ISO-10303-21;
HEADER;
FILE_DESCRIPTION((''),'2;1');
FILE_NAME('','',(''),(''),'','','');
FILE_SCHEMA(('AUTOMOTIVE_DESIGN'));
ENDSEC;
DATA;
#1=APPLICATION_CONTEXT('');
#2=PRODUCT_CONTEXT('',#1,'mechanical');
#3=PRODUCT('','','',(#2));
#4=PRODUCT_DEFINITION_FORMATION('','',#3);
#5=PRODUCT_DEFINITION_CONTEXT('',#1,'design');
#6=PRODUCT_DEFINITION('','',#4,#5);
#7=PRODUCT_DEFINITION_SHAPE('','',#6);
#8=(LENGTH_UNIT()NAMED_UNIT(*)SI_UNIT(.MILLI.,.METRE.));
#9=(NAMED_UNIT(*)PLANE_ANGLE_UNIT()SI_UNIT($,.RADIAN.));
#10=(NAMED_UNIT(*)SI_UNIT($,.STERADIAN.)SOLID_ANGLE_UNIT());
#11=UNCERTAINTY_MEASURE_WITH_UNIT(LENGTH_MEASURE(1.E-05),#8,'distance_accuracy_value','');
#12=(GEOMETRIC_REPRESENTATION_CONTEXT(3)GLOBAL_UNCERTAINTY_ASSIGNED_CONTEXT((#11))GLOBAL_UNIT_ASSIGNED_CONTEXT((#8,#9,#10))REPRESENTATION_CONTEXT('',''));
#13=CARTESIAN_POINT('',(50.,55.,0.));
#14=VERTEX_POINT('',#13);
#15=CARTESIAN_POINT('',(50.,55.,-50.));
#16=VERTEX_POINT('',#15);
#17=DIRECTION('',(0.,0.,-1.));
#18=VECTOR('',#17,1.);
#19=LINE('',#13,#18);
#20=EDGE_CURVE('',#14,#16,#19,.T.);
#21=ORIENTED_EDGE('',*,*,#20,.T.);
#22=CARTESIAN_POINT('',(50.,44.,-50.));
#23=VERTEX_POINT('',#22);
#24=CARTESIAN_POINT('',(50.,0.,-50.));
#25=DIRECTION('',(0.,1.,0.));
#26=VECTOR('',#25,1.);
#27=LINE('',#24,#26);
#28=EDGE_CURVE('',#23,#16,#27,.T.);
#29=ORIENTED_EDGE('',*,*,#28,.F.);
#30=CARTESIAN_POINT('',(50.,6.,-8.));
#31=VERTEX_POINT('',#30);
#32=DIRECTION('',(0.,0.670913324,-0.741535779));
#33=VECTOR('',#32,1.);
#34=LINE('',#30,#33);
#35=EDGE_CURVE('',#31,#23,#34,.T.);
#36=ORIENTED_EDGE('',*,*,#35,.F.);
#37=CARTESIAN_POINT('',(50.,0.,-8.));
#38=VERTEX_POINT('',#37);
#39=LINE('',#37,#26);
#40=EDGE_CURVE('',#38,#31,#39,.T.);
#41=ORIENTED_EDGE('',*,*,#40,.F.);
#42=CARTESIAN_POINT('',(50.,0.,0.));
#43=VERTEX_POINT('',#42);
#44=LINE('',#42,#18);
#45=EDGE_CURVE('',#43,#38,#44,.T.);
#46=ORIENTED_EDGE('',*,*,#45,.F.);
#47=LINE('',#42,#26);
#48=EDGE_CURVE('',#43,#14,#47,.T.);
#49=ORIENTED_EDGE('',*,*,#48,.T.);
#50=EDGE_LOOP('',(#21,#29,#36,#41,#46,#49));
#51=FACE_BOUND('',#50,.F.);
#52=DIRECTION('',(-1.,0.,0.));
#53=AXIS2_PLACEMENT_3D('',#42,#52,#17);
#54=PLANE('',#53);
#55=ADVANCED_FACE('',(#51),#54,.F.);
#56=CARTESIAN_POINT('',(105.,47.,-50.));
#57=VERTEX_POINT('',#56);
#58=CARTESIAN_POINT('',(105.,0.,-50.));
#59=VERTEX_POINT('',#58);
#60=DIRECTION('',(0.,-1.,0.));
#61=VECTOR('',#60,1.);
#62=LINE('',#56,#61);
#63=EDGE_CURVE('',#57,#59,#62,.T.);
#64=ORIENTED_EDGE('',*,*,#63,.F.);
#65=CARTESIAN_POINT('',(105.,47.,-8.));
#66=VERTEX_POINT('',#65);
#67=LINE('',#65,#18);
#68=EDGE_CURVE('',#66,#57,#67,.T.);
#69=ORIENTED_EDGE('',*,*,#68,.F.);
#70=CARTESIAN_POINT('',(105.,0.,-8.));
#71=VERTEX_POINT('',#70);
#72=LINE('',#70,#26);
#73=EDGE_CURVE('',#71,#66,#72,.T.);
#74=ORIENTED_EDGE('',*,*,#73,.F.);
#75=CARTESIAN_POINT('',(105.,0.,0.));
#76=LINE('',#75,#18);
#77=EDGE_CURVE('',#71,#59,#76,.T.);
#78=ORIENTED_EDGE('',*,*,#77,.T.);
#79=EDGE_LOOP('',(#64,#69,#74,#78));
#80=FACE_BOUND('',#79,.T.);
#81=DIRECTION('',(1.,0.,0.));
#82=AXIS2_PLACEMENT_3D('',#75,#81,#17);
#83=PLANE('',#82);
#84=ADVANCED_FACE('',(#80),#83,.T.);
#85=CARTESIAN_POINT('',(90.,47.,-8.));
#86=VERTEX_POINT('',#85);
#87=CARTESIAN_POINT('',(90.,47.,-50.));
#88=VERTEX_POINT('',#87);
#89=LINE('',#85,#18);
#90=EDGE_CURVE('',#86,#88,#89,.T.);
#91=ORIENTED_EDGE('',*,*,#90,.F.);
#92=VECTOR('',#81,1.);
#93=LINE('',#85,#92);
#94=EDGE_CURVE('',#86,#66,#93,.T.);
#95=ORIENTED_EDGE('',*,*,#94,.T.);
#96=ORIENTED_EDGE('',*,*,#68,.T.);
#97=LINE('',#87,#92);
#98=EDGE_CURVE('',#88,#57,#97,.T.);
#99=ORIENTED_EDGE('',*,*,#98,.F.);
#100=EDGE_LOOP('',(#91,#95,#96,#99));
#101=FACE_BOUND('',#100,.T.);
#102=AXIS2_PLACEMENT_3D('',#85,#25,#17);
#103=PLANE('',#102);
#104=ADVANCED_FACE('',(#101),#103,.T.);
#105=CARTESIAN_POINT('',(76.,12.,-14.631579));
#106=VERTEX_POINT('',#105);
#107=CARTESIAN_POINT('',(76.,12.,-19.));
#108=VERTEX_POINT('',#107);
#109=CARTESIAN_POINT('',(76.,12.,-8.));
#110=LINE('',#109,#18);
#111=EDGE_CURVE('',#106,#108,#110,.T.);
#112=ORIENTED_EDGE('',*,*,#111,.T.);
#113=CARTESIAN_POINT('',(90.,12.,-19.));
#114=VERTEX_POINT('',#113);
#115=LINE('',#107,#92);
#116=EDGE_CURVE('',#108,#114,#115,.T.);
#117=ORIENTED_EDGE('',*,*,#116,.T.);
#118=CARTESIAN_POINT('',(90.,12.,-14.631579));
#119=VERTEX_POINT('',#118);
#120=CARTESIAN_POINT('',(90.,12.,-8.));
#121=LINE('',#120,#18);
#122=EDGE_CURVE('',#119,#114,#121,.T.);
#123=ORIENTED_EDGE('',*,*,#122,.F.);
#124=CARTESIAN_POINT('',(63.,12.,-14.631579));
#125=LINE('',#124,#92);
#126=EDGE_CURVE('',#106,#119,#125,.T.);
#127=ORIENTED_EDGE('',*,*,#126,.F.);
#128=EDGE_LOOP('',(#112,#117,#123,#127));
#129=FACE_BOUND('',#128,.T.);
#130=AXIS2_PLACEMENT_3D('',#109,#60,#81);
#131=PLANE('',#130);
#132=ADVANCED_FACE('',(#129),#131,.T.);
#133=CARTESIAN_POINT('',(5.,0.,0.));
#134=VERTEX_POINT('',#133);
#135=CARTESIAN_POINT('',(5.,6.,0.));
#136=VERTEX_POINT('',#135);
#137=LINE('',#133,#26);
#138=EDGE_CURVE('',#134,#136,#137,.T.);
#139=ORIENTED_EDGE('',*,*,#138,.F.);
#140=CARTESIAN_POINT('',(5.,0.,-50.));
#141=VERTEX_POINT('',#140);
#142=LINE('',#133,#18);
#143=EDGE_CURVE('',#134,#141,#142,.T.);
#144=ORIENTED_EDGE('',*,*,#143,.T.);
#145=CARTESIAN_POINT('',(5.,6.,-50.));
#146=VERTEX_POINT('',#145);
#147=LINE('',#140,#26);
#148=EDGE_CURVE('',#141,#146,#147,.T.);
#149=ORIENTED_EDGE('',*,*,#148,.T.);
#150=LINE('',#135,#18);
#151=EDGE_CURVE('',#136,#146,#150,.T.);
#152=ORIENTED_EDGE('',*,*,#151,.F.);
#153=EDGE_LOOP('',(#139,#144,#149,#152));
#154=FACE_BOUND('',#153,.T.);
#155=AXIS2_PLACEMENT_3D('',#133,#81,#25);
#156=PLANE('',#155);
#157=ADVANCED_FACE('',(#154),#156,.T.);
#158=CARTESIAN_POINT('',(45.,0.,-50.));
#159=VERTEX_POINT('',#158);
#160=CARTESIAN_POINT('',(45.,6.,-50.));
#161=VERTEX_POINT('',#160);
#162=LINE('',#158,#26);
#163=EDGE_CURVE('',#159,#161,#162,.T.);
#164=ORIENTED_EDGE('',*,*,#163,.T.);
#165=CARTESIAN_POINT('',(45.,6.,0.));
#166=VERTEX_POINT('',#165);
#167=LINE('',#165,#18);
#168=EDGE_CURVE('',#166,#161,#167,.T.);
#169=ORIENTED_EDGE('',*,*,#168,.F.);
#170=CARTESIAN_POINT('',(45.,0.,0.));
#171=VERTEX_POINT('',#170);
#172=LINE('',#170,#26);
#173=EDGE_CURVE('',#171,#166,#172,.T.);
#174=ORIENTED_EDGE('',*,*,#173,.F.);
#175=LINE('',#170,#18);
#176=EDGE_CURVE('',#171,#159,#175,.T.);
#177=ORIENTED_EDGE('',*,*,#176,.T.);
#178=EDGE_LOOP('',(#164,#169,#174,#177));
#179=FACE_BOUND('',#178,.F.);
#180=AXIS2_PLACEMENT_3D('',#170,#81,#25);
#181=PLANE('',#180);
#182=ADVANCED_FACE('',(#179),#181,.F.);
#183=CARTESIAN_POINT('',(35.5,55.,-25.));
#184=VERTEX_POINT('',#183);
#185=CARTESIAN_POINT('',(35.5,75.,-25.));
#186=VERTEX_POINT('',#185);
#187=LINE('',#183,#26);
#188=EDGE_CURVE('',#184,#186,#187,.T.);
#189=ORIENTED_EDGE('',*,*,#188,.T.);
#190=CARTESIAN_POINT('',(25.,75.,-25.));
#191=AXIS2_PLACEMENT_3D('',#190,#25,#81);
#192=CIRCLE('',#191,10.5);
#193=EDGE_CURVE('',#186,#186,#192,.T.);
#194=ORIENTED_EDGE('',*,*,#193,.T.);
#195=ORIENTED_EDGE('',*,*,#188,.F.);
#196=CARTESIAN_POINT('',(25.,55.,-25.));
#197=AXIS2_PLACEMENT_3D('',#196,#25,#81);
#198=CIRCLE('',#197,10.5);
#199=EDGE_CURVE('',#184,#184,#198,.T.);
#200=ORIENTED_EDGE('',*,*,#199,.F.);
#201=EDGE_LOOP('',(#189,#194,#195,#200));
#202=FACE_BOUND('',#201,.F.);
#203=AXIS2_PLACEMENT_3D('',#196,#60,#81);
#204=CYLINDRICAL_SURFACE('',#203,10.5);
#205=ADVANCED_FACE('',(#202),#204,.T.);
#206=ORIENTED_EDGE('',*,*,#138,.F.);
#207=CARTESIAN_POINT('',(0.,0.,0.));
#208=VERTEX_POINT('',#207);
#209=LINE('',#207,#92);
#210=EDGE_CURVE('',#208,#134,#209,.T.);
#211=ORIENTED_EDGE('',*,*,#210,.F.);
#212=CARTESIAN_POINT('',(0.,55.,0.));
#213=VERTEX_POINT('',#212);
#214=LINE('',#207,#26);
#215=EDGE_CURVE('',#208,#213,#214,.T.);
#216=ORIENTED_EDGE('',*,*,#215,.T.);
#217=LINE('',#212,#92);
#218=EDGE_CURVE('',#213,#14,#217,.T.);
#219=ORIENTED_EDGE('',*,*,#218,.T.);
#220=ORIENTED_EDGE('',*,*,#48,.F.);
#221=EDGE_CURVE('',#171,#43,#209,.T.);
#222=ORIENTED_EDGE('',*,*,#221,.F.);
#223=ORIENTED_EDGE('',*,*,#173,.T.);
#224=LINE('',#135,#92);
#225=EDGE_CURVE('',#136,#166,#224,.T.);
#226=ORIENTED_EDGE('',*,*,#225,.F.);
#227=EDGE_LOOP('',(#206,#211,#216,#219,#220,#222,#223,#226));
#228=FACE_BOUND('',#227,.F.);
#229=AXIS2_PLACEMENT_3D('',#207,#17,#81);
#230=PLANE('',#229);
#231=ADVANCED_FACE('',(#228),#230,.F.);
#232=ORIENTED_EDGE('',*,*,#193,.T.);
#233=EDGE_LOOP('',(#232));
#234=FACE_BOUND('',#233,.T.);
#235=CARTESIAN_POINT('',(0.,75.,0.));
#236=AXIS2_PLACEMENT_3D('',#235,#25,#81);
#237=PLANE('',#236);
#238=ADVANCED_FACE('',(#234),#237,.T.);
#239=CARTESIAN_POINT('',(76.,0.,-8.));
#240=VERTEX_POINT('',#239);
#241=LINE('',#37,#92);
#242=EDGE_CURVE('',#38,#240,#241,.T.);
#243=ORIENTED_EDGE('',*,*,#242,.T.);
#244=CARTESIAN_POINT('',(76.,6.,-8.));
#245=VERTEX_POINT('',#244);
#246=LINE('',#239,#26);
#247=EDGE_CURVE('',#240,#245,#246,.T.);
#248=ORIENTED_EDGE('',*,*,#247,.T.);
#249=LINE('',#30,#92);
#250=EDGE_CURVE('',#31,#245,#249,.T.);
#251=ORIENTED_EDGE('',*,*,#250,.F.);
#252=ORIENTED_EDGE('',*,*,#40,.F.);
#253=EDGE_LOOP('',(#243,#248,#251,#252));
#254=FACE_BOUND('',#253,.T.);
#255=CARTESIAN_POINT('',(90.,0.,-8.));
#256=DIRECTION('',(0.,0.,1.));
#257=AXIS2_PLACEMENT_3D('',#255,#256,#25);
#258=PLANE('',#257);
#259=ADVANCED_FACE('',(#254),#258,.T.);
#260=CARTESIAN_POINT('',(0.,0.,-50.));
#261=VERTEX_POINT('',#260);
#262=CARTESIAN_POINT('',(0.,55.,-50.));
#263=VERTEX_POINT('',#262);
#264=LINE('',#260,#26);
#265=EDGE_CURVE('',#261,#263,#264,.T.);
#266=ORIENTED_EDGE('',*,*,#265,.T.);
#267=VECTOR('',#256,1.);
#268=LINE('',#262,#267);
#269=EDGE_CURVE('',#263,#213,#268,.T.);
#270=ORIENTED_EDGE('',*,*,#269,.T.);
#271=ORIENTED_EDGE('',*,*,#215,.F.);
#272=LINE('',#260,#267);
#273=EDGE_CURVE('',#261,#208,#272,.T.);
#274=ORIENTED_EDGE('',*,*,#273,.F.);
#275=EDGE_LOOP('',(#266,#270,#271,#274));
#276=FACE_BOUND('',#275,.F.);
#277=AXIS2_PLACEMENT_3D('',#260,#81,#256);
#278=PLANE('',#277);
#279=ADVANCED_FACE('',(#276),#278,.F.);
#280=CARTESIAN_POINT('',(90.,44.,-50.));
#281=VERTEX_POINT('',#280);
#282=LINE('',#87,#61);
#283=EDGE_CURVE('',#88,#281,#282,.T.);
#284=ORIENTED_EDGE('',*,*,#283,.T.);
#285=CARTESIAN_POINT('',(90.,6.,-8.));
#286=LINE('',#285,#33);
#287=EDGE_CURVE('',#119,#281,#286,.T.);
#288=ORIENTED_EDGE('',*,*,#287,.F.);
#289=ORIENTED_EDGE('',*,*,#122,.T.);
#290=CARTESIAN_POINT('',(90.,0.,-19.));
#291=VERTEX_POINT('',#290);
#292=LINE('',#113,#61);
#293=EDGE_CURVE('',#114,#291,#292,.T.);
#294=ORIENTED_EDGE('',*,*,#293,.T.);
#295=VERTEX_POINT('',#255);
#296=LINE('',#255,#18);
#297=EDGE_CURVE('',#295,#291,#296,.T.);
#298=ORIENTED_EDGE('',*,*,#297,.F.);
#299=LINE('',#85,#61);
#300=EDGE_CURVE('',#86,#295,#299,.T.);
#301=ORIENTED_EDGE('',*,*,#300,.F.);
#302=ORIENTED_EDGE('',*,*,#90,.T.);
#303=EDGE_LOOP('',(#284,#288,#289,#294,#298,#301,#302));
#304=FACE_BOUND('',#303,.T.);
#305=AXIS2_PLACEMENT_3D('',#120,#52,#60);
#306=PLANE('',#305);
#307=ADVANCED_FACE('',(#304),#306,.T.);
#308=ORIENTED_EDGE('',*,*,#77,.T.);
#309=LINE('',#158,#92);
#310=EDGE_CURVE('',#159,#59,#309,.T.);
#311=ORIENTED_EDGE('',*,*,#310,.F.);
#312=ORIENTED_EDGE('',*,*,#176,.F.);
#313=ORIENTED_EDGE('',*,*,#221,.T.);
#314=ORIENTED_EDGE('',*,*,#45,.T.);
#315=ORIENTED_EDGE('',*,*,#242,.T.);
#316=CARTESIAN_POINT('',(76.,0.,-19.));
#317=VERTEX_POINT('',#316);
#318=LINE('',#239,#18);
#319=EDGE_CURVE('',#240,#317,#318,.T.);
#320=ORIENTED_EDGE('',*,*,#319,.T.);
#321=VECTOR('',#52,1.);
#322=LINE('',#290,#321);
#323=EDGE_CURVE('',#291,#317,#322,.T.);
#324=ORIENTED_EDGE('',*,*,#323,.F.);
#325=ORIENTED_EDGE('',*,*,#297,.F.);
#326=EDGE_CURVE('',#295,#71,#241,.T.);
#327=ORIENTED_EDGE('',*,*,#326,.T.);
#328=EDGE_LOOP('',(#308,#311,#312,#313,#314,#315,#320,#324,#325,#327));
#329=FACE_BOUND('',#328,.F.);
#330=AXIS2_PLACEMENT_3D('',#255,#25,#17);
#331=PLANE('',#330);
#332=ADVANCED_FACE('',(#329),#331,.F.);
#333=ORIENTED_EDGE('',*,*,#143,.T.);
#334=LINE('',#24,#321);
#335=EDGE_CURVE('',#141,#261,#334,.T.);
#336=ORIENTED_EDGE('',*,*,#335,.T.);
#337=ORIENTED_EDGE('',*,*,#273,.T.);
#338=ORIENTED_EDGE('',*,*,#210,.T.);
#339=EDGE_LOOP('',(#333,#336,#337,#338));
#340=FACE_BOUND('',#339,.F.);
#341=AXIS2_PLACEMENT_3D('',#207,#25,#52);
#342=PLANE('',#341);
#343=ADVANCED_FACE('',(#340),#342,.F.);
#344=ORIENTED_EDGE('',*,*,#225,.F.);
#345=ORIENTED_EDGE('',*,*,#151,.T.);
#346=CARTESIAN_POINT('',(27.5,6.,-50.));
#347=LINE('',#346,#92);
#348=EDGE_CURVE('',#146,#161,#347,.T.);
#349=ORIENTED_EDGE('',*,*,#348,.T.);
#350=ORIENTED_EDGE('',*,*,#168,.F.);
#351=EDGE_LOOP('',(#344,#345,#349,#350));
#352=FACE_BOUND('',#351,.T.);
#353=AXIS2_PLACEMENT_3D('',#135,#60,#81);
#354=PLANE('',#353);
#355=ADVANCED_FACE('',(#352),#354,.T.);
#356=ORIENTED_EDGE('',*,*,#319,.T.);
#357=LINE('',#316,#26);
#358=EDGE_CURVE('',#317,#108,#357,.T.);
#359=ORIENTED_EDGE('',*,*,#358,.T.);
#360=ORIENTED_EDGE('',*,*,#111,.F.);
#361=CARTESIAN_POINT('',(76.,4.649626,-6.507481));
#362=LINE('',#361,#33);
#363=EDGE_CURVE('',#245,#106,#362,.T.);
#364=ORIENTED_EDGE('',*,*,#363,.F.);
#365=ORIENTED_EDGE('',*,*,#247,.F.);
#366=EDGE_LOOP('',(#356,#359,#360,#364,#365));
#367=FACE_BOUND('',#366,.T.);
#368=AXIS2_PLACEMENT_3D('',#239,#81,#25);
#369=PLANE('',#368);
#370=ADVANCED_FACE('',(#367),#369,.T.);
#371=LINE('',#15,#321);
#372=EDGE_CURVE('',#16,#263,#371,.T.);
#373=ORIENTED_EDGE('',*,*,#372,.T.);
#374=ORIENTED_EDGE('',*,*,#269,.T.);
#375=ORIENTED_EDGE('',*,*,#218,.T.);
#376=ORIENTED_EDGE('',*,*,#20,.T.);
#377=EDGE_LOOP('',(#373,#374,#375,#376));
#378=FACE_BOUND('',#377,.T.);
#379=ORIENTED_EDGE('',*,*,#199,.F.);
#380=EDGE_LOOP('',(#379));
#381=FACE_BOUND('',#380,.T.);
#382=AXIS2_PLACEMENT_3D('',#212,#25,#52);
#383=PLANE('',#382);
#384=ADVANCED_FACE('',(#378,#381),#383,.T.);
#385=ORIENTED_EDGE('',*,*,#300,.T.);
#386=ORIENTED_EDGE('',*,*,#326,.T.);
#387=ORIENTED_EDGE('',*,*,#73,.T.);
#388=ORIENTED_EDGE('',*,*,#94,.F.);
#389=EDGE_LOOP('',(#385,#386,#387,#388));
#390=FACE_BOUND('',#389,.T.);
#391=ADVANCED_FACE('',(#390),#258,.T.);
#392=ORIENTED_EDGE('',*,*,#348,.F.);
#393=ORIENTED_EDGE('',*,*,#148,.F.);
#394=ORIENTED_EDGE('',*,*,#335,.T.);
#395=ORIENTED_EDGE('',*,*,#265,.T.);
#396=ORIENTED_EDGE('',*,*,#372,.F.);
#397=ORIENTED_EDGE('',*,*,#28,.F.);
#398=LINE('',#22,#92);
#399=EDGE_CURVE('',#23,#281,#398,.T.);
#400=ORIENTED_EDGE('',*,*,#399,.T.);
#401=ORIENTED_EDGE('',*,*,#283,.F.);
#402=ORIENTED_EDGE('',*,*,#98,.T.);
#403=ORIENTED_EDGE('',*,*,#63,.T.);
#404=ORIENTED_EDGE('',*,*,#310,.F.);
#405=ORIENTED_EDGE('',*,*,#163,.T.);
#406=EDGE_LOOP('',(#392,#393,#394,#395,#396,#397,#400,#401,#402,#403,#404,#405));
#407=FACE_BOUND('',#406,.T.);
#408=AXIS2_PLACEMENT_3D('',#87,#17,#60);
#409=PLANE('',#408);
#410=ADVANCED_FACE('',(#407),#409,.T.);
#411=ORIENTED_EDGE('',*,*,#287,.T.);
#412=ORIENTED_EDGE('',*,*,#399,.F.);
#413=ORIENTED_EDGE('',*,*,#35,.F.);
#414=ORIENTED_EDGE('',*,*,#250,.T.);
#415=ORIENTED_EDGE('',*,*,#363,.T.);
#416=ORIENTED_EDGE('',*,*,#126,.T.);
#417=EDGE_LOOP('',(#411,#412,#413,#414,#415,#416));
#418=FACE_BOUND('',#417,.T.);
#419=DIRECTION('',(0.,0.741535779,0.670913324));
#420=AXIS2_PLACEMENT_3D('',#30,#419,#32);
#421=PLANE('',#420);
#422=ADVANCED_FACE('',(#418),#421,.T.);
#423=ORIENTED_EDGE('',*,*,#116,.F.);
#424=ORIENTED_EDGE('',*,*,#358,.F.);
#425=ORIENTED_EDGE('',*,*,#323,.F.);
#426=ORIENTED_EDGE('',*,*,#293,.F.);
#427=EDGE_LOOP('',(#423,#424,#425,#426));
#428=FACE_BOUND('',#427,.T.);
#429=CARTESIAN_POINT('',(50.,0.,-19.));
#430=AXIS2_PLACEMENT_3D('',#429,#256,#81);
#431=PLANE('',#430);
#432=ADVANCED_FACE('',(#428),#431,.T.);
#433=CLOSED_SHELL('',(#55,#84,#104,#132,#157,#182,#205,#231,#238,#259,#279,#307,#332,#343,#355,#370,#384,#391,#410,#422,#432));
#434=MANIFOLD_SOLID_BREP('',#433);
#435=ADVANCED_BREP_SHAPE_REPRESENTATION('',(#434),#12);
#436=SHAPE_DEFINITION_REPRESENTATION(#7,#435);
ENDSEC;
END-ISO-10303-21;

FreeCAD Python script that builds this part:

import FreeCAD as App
import Part
import Sketcher

V = App.Vector

doc = App.newDocument("Part")
body = doc.addObject("PartDesign::Body", "Body")

sketch1 = body.newObject("Sketcher::SketchObject", "Sketch")
sketch1.AttachmentSupport = (doc.getObject("XZ_Plane"), [""])
sketch1.MapMode = "FlatFace"
sketch1.addGeometry([
    Part.LineSegment(V(0, -50, 0), V(0, 0, 0)),
    Part.LineSegment(V(0, 0, 0), V(50, 0, 0)),
    Part.LineSegment(V(50, 0, 0), V(50, -50, 0)),
    Part.LineSegment(V(50, -50, 0), V(0, -50, 0)),
], False)
sketch1.addConstraint([
    Sketcher.Constraint("Coincident", 0, 2, 1, 1),
    Sketcher.Constraint("Coincident", 1, 2, 2, 1),
    Sketcher.Constraint("Coincident", 2, 2, 3, 1),
    Sketcher.Constraint("Coincident", 3, 2, 0, 1),
    Sketcher.Constraint("Vertical", 0),
    Sketcher.Constraint("Horizontal", 1),
    Sketcher.Constraint("Vertical", 2),
    Sketcher.Constraint("Horizontal", 3),
    Sketcher.Constraint("Coincident", 0, 2, -1, 1),
    Sketcher.Constraint("Equal", 3, 0),
    Sketcher.Constraint("DistanceX", 1, 1, 1, 2, 50.0),
])
pad1 = body.newObject("PartDesign::Pad", "Pad")
pad1.Profile = sketch1
pad1.Length = 55
pad1.Reversed = True

sketch2 = body.newObject("Sketcher::SketchObject", "Sketch001")
sketch2.AttachmentSupport = (doc.getObject("XY_Plane"), [""])
sketch2.MapMode = "FlatFace"
sketch2.addGeometry([
    Part.LineSegment(V(5, 6, 0), V(5, 0, 0)),
    Part.LineSegment(V(5, 0, 0), V(45, 0, 0)),
    Part.LineSegment(V(45, 0, 0), V(45, 6, 0)),
    Part.LineSegment(V(45, 6, 0), V(5, 6, 0)),
], False)
sketch2.addConstraint([
    Sketcher.Constraint("Coincident", 0, 2, 1, 1),
    Sketcher.Constraint("Coincident", 1, 2, 2, 1),
    Sketcher.Constraint("Coincident", 2, 2, 3, 1),
    Sketcher.Constraint("Coincident", 3, 2, 0, 1),
    Sketcher.Constraint("Vertical", 0),
    Sketcher.Constraint("Horizontal", 1),
    Sketcher.Constraint("Vertical", 2),
    Sketcher.Constraint("Horizontal", 3),
    Sketcher.Constraint("PointOnObject", 0, 2, -1),
    Sketcher.Constraint("DistanceY", 0, 2, 0, 1, 6.0),
    Sketcher.Constraint("DistanceX", -1, 1, 0, 2, 5.0),
    Sketcher.Constraint("DistanceX", 1, 1, 1, 2, 40.0),
])
pocket1 = body.newObject("PartDesign::Pocket", "Pocket")
pocket1.Profile = sketch2
pocket1.Length = 55

sketch3 = body.newObject("Sketcher::SketchObject", "Sketch002")
sketch3.AttachmentSupport = (doc.getObject("XZ_Plane"), [""])
sketch3.MapMode = "FlatFace"
sketch3.AttachmentOffset = App.Placement(V(0, 0, -55), App.Rotation())
sketch3.addGeometry(Part.Circle(V(25, -25, 0), V(0, 0, 1), 10.5), False)
sketch3.addConstraint([
    Sketcher.Constraint("Diameter", 0, 21.0),
    Sketcher.Constraint("DistanceX", -1, 1, 0, 3, 25.0),
    Sketcher.Constraint("DistanceY", 0, 3, -1, 1, 25.0),
])
pad2 = body.newObject("PartDesign::Pad", "Pad001")
pad2.Profile = sketch3
pad2.Length = 20
pad2.Reversed = True

sketch4 = body.newObject("Sketcher::SketchObject", "Sketch003")
sketch4.AttachmentSupport = (doc.getObject("YZ_Plane"), [""])
sketch4.MapMode = "FlatFace"
sketch4.AttachmentOffset = App.Placement(V(0, 0, 50), App.Rotation())
sketch4.addGeometry([
    Part.LineSegment(V(0, -8, 0), V(0, -50, 0)),
    Part.LineSegment(V(0, -50, 0), V(44, -50, 0)),
    Part.LineSegment(V(44, -50, 0), V(6, -8, 0)),
    Part.LineSegment(V(6, -8, 0), V(0, -8, 0)),
], False)
sketch4.addConstraint([
    Sketcher.Constraint("Coincident", 0, 2, 1, 1),
    Sketcher.Constraint("Coincident", 1, 2, 2, 1),
    Sketcher.Constraint("Coincident", 2, 2, 3, 1),
    Sketcher.Constraint("Coincident", 3, 2, 0, 1),
    Sketcher.Constraint("Vertical", 0),
    Sketcher.Constraint("Horizontal", 1),
    Sketcher.Constraint("Horizontal", 3),
    Sketcher.Constraint("PointOnObject", 0, 2, -2),
    Sketcher.Constraint("DistanceX", 1, 1, 1, 2, 44.0),
    Sketcher.Constraint("DistanceX", 3, 2, 3, 1, 6.0),
    Sketcher.Constraint("DistanceY", 0, 2, 0, 1, 42.0),
    Sketcher.Constraint("DistanceY", 0, 2, -1, 1, 50.0),
])
pad3 = body.newObject("PartDesign::Pad", "Pad002")
pad3.Profile = sketch4
pad3.Length = 40

sketch5 = body.newObject("Sketcher::SketchObject", "Sketch004")
sketch5.AttachmentSupport = (doc.getObject("YZ_Plane"), [""])
sketch5.MapMode = "FlatFace"
sketch5.AttachmentOffset = App.Placement(V(0, 0, 90), App.Rotation())
sketch5.addGeometry([
    Part.LineSegment(V(47, -8, 0), V(0, -8, 0)),
    Part.LineSegment(V(0, -8, 0), V(0, -50, 0)),
    Part.LineSegment(V(0, -50, 0), V(47, -50, 0)),
    Part.LineSegment(V(47, -50, 0), V(47, -8, 0)),
], False)
sketch5.addConstraint([
    Sketcher.Constraint("Coincident", 0, 2, 1, 1),
    Sketcher.Constraint("Coincident", 1, 2, 2, 1),
    Sketcher.Constraint("Coincident", 2, 2, 3, 1),
    Sketcher.Constraint("Coincident", 3, 2, 0, 1),
    Sketcher.Constraint("Horizontal", 0),
    Sketcher.Constraint("Vertical", 1),
    Sketcher.Constraint("Horizontal", 2),
    Sketcher.Constraint("Vertical", 3),
    Sketcher.Constraint("PointOnObject", 0, 2, -2),
    Sketcher.Constraint("DistanceX", 0, 2, 0, 1, 47.0),
    Sketcher.Constraint("DistanceY", 1, 2, 1, 1, 42.0),
    Sketcher.Constraint("DistanceY", 0, 2, -1, 1, 8.0),
])
pad4 = body.newObject("PartDesign::Pad", "Pad003")
pad4.Profile = sketch5
pad4.Length = 15

sketch6 = body.newObject("Sketcher::SketchObject", "Sketch005")
sketch6.AttachmentSupport = (doc.getObject("XY_Plane"), [""])
sketch6.MapMode = "FlatFace"
sketch6.AttachmentOffset = App.Placement(V(0, 0, -8), App.Rotation())
sketch6.addGeometry([
    Part.LineSegment(V(76, 0, 0), V(90, 0, 0)),
    Part.LineSegment(V(90, 0, 0), V(90, 12, 0)),
    Part.LineSegment(V(90, 12, 0), V(76, 12, 0)),
    Part.LineSegment(V(76, 12, 0), V(76, 0, 0)),
], False)
sketch6.addConstraint([
    Sketcher.Constraint("Coincident", 0, 2, 1, 1),
    Sketcher.Constraint("Coincident", 1, 2, 2, 1),
    Sketcher.Constraint("Coincident", 2, 2, 3, 1),
    Sketcher.Constraint("Coincident", 3, 2, 0, 1),
    Sketcher.Constraint("Horizontal", 0),
    Sketcher.Constraint("Vertical", 1),
    Sketcher.Constraint("Horizontal", 2),
    Sketcher.Constraint("Vertical", 3),
    Sketcher.Constraint("PointOnObject", 0, 2, -1),
    Sketcher.Constraint("DistanceX", 0, 1, 0, 2, 14.0),
    Sketcher.Constraint("DistanceY", 1, 1, 1, 2, 12.0),
    Sketcher.Constraint("DistanceX", -1, 1, 0, 2, 90.0),
])
pocket2 = body.newObject("PartDesign::Pocket", "Pocket001")
pocket2.Profile = sketch6
pocket2.Length = 11

doc.recompute()
